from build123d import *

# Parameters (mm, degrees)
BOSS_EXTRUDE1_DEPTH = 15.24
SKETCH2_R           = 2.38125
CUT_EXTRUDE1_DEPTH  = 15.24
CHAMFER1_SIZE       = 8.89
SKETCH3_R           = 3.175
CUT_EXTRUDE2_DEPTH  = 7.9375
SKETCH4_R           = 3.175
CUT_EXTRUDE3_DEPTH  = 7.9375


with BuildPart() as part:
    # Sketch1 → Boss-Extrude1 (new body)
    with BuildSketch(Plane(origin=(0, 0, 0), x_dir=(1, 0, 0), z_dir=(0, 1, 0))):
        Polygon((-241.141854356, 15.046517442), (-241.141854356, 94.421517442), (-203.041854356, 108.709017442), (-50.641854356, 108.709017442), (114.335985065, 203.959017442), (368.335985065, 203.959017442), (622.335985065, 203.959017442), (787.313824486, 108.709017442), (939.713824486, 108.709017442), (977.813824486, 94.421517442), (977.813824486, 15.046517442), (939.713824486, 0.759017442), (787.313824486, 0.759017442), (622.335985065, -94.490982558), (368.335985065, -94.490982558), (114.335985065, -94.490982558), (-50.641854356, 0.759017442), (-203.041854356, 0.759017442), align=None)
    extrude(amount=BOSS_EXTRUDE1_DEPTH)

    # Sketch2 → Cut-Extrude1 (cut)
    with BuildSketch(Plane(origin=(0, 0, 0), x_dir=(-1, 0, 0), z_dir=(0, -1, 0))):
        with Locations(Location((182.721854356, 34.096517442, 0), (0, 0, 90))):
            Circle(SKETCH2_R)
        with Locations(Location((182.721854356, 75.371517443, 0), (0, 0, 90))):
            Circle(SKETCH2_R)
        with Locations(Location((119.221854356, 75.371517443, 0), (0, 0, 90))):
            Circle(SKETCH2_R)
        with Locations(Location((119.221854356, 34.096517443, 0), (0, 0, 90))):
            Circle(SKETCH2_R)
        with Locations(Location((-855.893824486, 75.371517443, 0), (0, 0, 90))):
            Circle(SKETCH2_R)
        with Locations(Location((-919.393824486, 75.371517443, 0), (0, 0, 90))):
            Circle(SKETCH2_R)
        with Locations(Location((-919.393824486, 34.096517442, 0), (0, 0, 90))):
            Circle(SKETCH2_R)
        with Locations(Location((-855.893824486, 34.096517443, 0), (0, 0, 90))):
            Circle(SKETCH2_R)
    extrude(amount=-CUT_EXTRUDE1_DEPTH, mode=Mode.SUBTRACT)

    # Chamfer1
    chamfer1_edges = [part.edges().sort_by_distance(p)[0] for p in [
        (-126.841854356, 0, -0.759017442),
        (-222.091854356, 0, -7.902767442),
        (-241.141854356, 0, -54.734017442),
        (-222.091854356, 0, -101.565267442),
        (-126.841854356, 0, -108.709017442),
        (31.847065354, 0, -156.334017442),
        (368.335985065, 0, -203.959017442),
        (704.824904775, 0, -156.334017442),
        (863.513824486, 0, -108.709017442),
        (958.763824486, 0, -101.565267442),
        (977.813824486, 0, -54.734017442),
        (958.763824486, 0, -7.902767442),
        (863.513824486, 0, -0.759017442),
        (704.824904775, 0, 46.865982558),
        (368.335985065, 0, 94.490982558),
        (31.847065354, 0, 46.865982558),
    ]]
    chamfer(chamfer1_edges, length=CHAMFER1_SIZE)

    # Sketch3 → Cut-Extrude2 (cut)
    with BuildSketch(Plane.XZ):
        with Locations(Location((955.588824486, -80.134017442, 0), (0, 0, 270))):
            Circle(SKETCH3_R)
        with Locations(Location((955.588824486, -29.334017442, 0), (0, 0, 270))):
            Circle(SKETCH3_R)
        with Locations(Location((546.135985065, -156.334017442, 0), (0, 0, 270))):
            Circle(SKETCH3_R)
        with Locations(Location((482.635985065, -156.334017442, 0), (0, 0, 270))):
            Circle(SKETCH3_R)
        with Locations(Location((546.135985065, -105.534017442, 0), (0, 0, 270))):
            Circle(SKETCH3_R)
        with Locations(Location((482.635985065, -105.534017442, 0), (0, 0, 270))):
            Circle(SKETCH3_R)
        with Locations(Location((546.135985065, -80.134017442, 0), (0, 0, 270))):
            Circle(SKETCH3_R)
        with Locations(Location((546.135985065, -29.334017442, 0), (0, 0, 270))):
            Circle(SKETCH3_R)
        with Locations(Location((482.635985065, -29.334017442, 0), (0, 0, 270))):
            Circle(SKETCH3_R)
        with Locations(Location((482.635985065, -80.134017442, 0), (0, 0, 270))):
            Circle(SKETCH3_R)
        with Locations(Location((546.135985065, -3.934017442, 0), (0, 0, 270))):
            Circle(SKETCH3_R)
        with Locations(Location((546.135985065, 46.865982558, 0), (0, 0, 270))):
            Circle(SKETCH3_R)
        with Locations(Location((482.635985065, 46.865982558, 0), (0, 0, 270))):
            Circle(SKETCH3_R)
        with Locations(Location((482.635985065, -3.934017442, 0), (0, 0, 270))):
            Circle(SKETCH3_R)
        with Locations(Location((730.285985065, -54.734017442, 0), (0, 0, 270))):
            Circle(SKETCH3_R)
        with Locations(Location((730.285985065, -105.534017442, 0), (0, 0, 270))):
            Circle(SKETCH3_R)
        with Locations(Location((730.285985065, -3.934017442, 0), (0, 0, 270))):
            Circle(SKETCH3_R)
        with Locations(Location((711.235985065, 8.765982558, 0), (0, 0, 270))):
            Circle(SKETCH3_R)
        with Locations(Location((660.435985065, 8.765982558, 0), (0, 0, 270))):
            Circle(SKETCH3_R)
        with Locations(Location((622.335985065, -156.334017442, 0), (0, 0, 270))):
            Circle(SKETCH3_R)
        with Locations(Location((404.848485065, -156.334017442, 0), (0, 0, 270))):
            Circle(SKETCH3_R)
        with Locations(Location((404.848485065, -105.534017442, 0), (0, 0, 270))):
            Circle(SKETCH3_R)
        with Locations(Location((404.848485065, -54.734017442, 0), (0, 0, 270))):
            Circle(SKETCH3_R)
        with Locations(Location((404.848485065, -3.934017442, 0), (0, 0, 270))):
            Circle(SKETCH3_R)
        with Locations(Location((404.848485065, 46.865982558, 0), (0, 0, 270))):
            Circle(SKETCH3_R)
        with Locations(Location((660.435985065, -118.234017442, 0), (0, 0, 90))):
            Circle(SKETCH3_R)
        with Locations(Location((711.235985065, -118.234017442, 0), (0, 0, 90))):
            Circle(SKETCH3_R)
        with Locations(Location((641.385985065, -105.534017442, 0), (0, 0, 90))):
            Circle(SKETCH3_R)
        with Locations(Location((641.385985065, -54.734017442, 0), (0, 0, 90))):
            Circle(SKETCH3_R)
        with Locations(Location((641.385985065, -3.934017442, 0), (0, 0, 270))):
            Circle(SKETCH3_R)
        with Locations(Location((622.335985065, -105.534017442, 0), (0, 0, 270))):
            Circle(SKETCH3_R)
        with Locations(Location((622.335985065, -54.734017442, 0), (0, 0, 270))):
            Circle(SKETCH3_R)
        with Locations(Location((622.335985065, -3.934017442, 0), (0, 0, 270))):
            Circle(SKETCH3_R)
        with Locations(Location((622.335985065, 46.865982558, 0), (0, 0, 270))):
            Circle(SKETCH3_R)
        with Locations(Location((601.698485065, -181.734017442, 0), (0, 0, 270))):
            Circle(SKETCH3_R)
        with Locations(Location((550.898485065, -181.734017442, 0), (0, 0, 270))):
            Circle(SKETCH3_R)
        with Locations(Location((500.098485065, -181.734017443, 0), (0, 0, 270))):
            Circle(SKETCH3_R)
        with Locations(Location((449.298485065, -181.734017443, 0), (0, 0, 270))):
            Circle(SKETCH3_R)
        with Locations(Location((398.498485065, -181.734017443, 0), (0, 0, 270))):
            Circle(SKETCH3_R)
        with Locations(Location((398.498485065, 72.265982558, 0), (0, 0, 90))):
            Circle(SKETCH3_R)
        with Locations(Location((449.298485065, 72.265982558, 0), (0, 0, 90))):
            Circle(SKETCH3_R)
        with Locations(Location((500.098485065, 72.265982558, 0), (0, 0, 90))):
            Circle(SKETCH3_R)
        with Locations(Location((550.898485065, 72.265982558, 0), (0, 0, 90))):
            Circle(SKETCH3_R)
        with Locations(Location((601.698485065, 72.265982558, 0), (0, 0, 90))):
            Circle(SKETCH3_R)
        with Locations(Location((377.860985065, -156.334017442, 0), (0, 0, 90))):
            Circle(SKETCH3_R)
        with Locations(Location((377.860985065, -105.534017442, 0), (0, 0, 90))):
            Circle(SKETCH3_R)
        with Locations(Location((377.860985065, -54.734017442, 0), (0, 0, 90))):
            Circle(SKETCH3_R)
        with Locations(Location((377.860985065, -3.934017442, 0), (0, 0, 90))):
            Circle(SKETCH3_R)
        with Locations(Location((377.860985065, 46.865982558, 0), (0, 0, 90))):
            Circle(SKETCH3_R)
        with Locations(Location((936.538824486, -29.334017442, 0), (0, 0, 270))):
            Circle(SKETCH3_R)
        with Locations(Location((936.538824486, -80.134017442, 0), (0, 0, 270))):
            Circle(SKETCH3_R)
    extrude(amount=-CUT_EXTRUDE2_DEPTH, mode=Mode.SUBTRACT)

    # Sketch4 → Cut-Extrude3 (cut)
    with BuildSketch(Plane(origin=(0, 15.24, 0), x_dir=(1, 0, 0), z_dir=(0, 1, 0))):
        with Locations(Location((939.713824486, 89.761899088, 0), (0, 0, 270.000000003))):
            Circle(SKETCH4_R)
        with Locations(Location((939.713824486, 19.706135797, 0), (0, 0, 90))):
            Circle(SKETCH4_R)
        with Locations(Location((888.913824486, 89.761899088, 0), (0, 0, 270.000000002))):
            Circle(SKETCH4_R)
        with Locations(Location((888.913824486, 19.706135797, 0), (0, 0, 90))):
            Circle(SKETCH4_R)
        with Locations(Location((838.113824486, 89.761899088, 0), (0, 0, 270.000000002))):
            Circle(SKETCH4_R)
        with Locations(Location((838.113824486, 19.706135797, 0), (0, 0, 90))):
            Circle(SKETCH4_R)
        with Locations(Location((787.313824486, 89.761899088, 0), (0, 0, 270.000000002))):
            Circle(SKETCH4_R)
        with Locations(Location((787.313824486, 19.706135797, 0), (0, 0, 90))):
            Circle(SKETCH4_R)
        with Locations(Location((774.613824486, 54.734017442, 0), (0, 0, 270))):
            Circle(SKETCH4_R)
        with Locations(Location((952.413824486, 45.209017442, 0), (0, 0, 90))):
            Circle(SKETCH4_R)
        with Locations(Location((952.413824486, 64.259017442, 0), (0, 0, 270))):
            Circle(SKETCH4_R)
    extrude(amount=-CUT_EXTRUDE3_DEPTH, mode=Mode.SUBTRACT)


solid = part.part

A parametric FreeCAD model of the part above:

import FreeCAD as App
import Part
import Sketcher
Q = App.Units.Quantity


def edges_at(feature, points):
    """Names of the edges that pass closest to the given points."""
    edges = feature.Shape.Edges
    near = lambda p: min(range(len(edges)), key=lambda i: edges[i].distToShape(Part.Vertex(*p))[0])
    return sorted({f"Edge{near(p) + 1}" for p in points})


def add_polygon(sketch, points):
    """Adds a closed chain of lines whose ends are joined by coincident constraints."""
    first, n = sketch.GeometryCount, len(points)
    for a, b in zip(points, points[1:] + points[:1]):
        sketch.addGeometry(Part.LineSegment(App.Vector(*a, 0), App.Vector(*b, 0)), False)
    for i in range(n):
        sketch.addConstraint(Sketcher.Constraint("Coincident", first + i, 2, first + (i + 1) % n, 1))

doc = App.newDocument("Part")
body = doc.addObject("PartDesign::Body", "Body")

# Sketch on XZ plane
sketch1 = body.newObject("Sketcher::SketchObject", "Sketch")
sketch1.AttachmentSupport = (doc.getObject("XZ_Plane"), [""])
sketch1.MapMode = "FlatFace"
add_polygon(sketch1, [(-241, -94), (-241, -15), (-203, -1), (-51, -1), (114, 94), (622, 94), (787, -1), (940, -1), (978, -15), (978, -94), (940, -109), (787, -109), (622, -204), (114, -204), (-51, -109), (-203, -109)])  # lines 0-15
sketch1.addConstraint(Sketcher.Constraint("Vertical", 0))
sketch1.addConstraint(Sketcher.Constraint("Horizontal", 2))
sketch1.addConstraint(Sketcher.Constraint("Horizontal", 4))
sketch1.addConstraint(Sketcher.Constraint("Horizontal", 6))
sketch1.addConstraint(Sketcher.Constraint("Vertical", 8))
sketch1.addConstraint(Sketcher.Constraint("Horizontal", 10))
sketch1.addConstraint(Sketcher.Constraint("Horizontal", 12))
sketch1.addConstraint(Sketcher.Constraint("Horizontal", 14))
sketch1.addConstraint(Sketcher.Constraint("Parallel", 1, 9))
sketch1.addConstraint(Sketcher.Constraint("Parallel", 3, 11))
sketch1.addConstraint(Sketcher.Constraint("Parallel", 5, 13))
sketch1.addConstraint(Sketcher.Constraint("Parallel", 7, 15))
sketch1.addConstraint(Sketcher.Constraint("Horizontal", 2, 2, 5, 2))
sketch1.addConstraint(Sketcher.Constraint("Horizontal", 0, 2, 7, 2))
sketch1.addConstraint(Sketcher.Constraint("Horizontal", 10, 2, 13, 2))
sketch1.addConstraint(Sketcher.Constraint("Horizontal", 8, 2, 15, 2))
sketch1.addConstraint(Sketcher.Constraint("Vertical", 6, 2, 9, 2))
sketch1.addConstraint(Sketcher.Constraint("Vertical", 5, 2, 10, 2))
sketch1.addConstraint(Sketcher.Constraint("Vertical", 4, 2, 11, 2))
sketch1.addConstraint(Sketcher.Constraint("Vertical", 3, 2, 12, 2))
sketch1.addConstraint(Sketcher.Constraint("Vertical", 2, 2, 13, 2))
sketch1.addConstraint(Sketcher.Constraint("Vertical", 1, 2, 14, 2))
sketch1.addConstraint(Sketcher.Constraint("Equal", 2, 6))
sketch1.addConstraint(Sketcher.Constraint("DistanceX", 2, 1, 2, 2, Q("6 in")))
sketch1.addConstraint(Sketcher.Constraint("DistanceX", 4, 1, 4, 2, Q("20 in")))
sketch1.addConstraint(Sketcher.Constraint("Angle", 3, Q("30 deg")))
sketch1.addConstraint(Sketcher.Constraint("DistanceY", 9, 2, 4, 2, Q("8 in")))
sketch1.addConstraint(Sketcher.Constraint("Distance", 3, Q("7.5 in")))
sketch1.addConstraint(Sketcher.Constraint("DistanceX", 0, 2, 1, 2, Q("1.5 in")))
sketch1.addConstraint(Sketcher.Constraint("DistanceY", 0, 1, 0, 2, Q("3.125 in")))
sketch1.addConstraint(Sketcher.Constraint("DistanceX", 0, 2, -1, 1, Q("241.141854 mm")))
sketch1.addConstraint(Sketcher.Constraint("DistanceY", 0, 2, -1, 1, Q("15.046517 mm")))
pad1 = body.newObject("PartDesign::Pad", "Pad")
pad1.Profile = sketch1
pad1.Length = Q("0.6 in")
pad1.Reversed = True

# Sketch on XZ plane
sketch2 = body.newObject("Sketcher::SketchObject", "Sketch001")
sketch2.AttachmentSupport = (doc.getObject("XZ_Plane"), [""])
sketch2.MapMode = "FlatFace"
sketch2.addGeometry(Part.Circle(App.Vector(-182.7, -34.1, 0), App.Vector(0, 0, 1), 2.4), False)
sketch2.addGeometry(Part.Circle(App.Vector(-182.7, -75.4, 0), App.Vector(0, 0, 1), 2.4), False)
sketch2.addGeometry(Part.Circle(App.Vector(-119.2, -75.4, 0), App.Vector(0, 0, 1), 2.4), False)
sketch2.addGeometry(Part.Circle(App.Vector(-119.2, -34.1, 0), App.Vector(0, 0, 1), 2.4), False)
sketch2.addGeometry(Part.Circle(App.Vector(855.9, -75.4, 0), App.Vector(0, 0, 1), 2.4), False)
sketch2.addGeometry(Part.Circle(App.Vector(919.4, -75.4, 0), App.Vector(0, 0, 1), 2.4), False)
sketch2.addGeometry(Part.Circle(App.Vector(919.4, -34.1, 0), App.Vector(0, 0, 1), 2.4), False)
sketch2.addGeometry(Part.Circle(App.Vector(855.9, -34.1, 0), App.Vector(0, 0, 1), 2.4), False)
sketch2.addConstraint(Sketcher.Constraint("Equal", 0, 1))
sketch2.addConstraint(Sketcher.Constraint("Equal", 1, 2))
sketch2.addConstraint(Sketcher.Constraint("Equal", 2, 3))
sketch2.addConstraint(Sketcher.Constraint("Equal", 3, 4))
sketch2.addConstraint(Sketcher.Constraint("Equal", 4, 5))
sketch2.addConstraint(Sketcher.Constraint("Equal", 5, 6))
sketch2.addConstraint(Sketcher.Constraint("Equal", 6, 7))
sketch2.addConstraint(Sketcher.Constraint("Horizontal", 1, 3, 2, 3))
sketch2.addConstraint(Sketcher.Constraint("Horizontal", 0, 3, 3, 3))
sketch2.addConstraint(Sketcher.Constraint("Horizontal", 2, 3, 4, 3))
sketch2.addConstraint(Sketcher.Constraint("Horizontal", 4, 3, 5, 3))
sketch2.addConstraint(Sketcher.Constraint("Horizontal", 3, 3, 6, 3))
sketch2.addConstraint(Sketcher.Constraint("Horizontal", 6, 3, 7, 3))
sketch2.addConstraint(Sketcher.Constraint("Vertical", 0, 3, 1, 3))
sketch2.addConstraint(Sketcher.Constraint("Vertical", 2, 3, 3, 3))
sketch2.addConstraint(Sketcher.Constraint("Vertical", 5, 3, 6, 3))
sketch2.addConstraint(Sketcher.Constraint("Vertical", 4, 3, 7, 3))
sketch2.addConstraint(Sketcher.Constraint("Diameter", 0, Q("0.1875 in")))
sketch2.addConstraint(Sketcher.Constraint("DistanceX", 1, 3, 2, 3, Q("2.5 in")))
sketch2.addConstraint(Sketcher.Constraint("DistanceX", 4, 3, 5, 3, Q("2.5 in")))
sketch2.addConstraint(Sketcher.Constraint("DistanceY", 1, 3, 0, 3, Q("1.625 in")))
sketch2.addConstraint(Sketcher.Constraint("DistanceX", 2, 3, 4, 3, Q("975.115679 mm")))
sketch2.addConstraint(Sketcher.Constraint("DistanceX", 0, 3, -1, 1, Q("182.721854 mm")))
sketch2.addConstraint(Sketcher.Constraint("DistanceY", 0, 3, -1, 1, Q("34.096517 mm")))
pocket1 = body.newObject("PartDesign::Pocket", "Pocket")
pocket1.Profile = sketch2
pocket1.Length = Q("0.6 in")
doc.recompute()

chamfer = body.newObject("PartDesign::Chamfer", "Chamfer")
chamfer.Base = (pocket1, edges_at(pocket1, [
    (-126.842, 0, -0.759),
    (-222.092, 0, -7.903),
    (-241.142, 0, -54.734),
    (-222.092, 0, -101.565),
    (-126.842, 0, -108.709),
    (31.847, 0, -156.334),
    (368.336, 0, -203.959),
    (704.825, 0, -156.334),
    (863.514, 0, -108.709),
    (958.764, 0, -101.565),
    (977.814, 0, -54.734),
    (958.764, 0, -7.903),
    (863.514, 0, -0.759),
    (704.825, 0, 46.866),
    (368.336, 0, 94.491),
    (31.847, 0, 46.866),
]))
chamfer.Size = Q("0.35 in")

# Sketch on XZ plane
sketch3 = body.newObject("Sketcher::SketchObject", "Sketch002")
sketch3.AttachmentSupport = (doc.getObject("XZ_Plane"), [""])
sketch3.MapMode = "FlatFace"
sketch3.addGeometry(Part.Circle(App.Vector(955.6, -80.1, 0), App.Vector(0, 0, 1), 3.2), False)
sketch3.addGeometry(Part.Circle(App.Vector(955.6, -29.3, 0), App.Vector(0, 0, 1), 3.2), False)
sketch3.addGeometry(Part.Circle(App.Vector(546.1, -156.3, 0), App.Vector(0, 0, 1), 3.2), False)
sketch3.addGeometry(Part.Circle(App.Vector(482.6, -156.3, 0), App.Vector(0, 0, 1), 3.2), False)
sketch3.addGeometry(Part.Circle(App.Vector(546.1, -105.5, 0), App.Vector(0, 0, 1), 3.2), False)
sketch3.addGeometry(Part.Circle(App.Vector(482.6, -105.5, 0), App.Vector(0, 0, 1), 3.2), False)
sketch3.addGeometry(Part.Circle(App.Vector(546.1, -80.1, 0), App.Vector(0, 0, 1), 3.2), False)
sketch3.addGeometry(Part.Circle(App.Vector(546.1, -29.3, 0), App.Vector(0, 0, 1), 3.2), False)
sketch3.addGeometry(Part.Circle(App.Vector(482.6, -29.3, 0), App.Vector(0, 0, 1), 3.2), False)
sketch3.addGeometry(Part.Circle(App.Vector(482.6, -80.1, 0), App.Vector(0, 0, 1), 3.2), False)
sketch3.addGeometry(Part.Circle(App.Vector(546.1, -3.9, 0), App.Vector(0, 0, 1), 3.2), False)
sketch3.addGeometry(Part.Circle(App.Vector(546.1, 46.9, 0), App.Vector(0, 0, 1), 3.2), False)
sketch3.addGeometry(Part.Circle(App.Vector(482.6, 46.9, 0), App.Vector(0, 0, 1), 3.2), False)
sketch3.addGeometry(Part.Circle(App.Vector(482.6, -3.9, 0), App.Vector(0, 0, 1), 3.2), False)
sketch3.addGeometry(Part.Circle(App.Vector(730.3, -54.7, 0), App.Vector(0, 0, 1), 3.2), False)
sketch3.addGeometry(Part.Circle(App.Vector(730.3, -105.5, 0), App.Vector(0, 0, 1), 3.2), False)
sketch3.addGeometry(Part.Circle(App.Vector(730.3, -3.9, 0), App.Vector(0, 0, 1), 3.2), False)
sketch3.addGeometry(Part.Circle(App.Vector(711.2, 8.8, 0), App.Vector(0, 0, 1), 3.2), False)
sketch3.addGeometry(Part.Circle(App.Vector(660.4, 8.8, 0), App.Vector(0, 0, 1), 3.2), False)
sketch3.addGeometry(Part.Circle(App.Vector(622.3, -156.3, 0), App.Vector(0, 0, 1), 3.2), False)
sketch3.addGeometry(Part.Circle(App.Vector(404.8, -156.3, 0), App.Vector(0, 0, 1), 3.2), False)
sketch3.addGeometry(Part.Circle(App.Vector(404.8, -105.5, 0), App.Vector(0, 0, 1), 3.2), False)
sketch3.addGeometry(Part.Circle(App.Vector(404.8, -54.7, 0), App.Vector(0, 0, 1), 3.2), False)
sketch3.addGeometry(Part.Circle(App.Vector(404.8, -3.9, 0), App.Vector(0, 0, 1), 3.2), False)
sketch3.addGeometry(Part.Circle(App.Vector(404.8, 46.9, 0), App.Vector(0, 0, 1), 3.2), False)
sketch3.addGeometry(Part.Circle(App.Vector(660.4, -118.2, 0), App.Vector(0, 0, 1), 3.2), False)
sketch3.addGeometry(Part.Circle(App.Vector(711.2, -118.2, 0), App.Vector(0, 0, 1), 3.2), False)
sketch3.addGeometry(Part.Circle(App.Vector(641.4, -105.5, 0), App.Vector(0, 0, 1), 3.2), False)
sketch3.addGeometry(Part.Circle(App.Vector(641.4, -54.7, 0), App.Vector(0, 0, 1), 3.2), False)
sketch3.addGeometry(Part.Circle(App.Vector(641.4, -3.9, 0), App.Vector(0, 0, 1), 3.2), False)
sketch3.addGeometry(Part.Circle(App.Vector(622.3, -105.5, 0), App.Vector(0, 0, 1), 3.2), False)
sketch3.addGeometry(Part.Circle(App.Vector(622.3, -54.7, 0), App.Vector(0, 0, 1), 3.2), False)
sketch3.addGeometry(Part.Circle(App.Vector(622.3, -3.9, 0), App.Vector(0, 0, 1), 3.2), False)
sketch3.addGeometry(Part.Circle(App.Vector(622.3, 46.9, 0), App.Vector(0, 0, 1), 3.2), False)
sketch3.addGeometry(Part.Circle(App.Vector(601.7, -181.7, 0), App.Vector(0, 0, 1), 3.2), False)
sketch3.addGeometry(Part.Circle(App.Vector(550.9, -181.7, 0), App.Vector(0, 0, 1), 3.2), False)
sketch3.addGeometry(Part.Circle(App.Vector(500.1, -181.7, 0), App.Vector(0, 0, 1), 3.2), False)
sketch3.addGeometry(Part.Circle(App.Vector(449.3, -181.7, 0), App.Vector(0, 0, 1), 3.2), False)
sketch3.addGeometry(Part.Circle(App.Vector(398.5, -181.7, 0), App.Vector(0, 0, 1), 3.2), False)
sketch3.addGeometry(Part.Circle(App.Vector(398.5, 72.3, 0), App.Vector(0, 0, 1), 3.2), False)
sketch3.addGeometry(Part.Circle(App.Vector(449.3, 72.3, 0), App.Vector(0, 0, 1), 3.2), False)
sketch3.addGeometry(Part.Circle(App.Vector(500.1, 72.3, 0), App.Vector(0, 0, 1), 3.2), False)
sketch3.addGeometry(Part.Circle(App.Vector(550.9, 72.3, 0), App.Vector(0, 0, 1), 3.2), False)
sketch3.addGeometry(Part.Circle(App.Vector(601.7, 72.3, 0), App.Vector(0, 0, 1), 3.2), False)
sketch3.addGeometry(Part.Circle(App.Vector(377.9, -156.3, 0), App.Vector(0, 0, 1), 3.2), False)
sketch3.addGeometry(Part.Circle(App.Vector(377.9, -105.5, 0), App.Vector(0, 0, 1), 3.2), False)
sketch3.addGeometry(Part.Circle(App.Vector(377.9, -54.7, 0), App.Vector(0, 0, 1), 3.2), False)
sketch3.addGeometry(Part.Circle(App.Vector(377.9, -3.9, 0), App.Vector(0, 0, 1), 3.2), False)
sketch3.addGeometry(Part.Circle(App.Vector(377.9, 46.9, 0), App.Vector(0, 0, 1), 3.2), False)
sketch3.addGeometry(Part.Circle(App.Vector(936.5, -29.3, 0), App.Vector(0, 0, 1), 3.2), False)
sketch3.addGeometry(Part.Circle(App.Vector(936.5, -80.1, 0), App.Vector(0, 0, 1), 3.2), False)
sketch3.addConstraint(Sketcher.Constraint("Equal", 0, 1))
sketch3.addConstraint(Sketcher.Constraint("Equal", 1, 2))
sketch3.addConstraint(Sketcher.Constraint("Equal", 2, 3))
sketch3.addConstraint(Sketcher.Constraint("Equal", 3, 4))
sketch3.addConstraint(Sketcher.Constraint("Equal", 4, 5))
sketch3.addConstraint(Sketcher.Constraint("Equal", 5, 6))
sketch3.addConstraint(Sketcher.Constraint("Equal", 6, 7))
sketch3.addConstraint(Sketcher.Constraint("Equal", 7, 8))
sketch3.addConstraint(Sketcher.Constraint("Equal", 8, 9))
sketch3.addConstraint(Sketcher.Constraint("Equal", 9, 10))
sketch3.addConstraint(Sketcher.Constraint("Equal", 10, 11))
sketch3.addConstraint(Sketcher.Constraint("Equal", 11, 12))
sketch3.addConstraint(Sketcher.Constraint("Equal", 12, 13))
sketch3.addConstraint(Sketcher.Constraint("Equal", 13, 14))
sketch3.addConstraint(Sketcher.Constraint("Equal", 14, 15))
sketch3.addConstraint(Sketcher.Constraint("Equal", 15, 16))
sketch3.addConstraint(Sketcher.Constraint("Equal", 16, 17))
sketch3.addConstraint(Sketcher.Constraint("Equal", 17, 18))
sketch3.addConstraint(Sketcher.Constraint("Equal", 18, 19))
sketch3.addConstraint(Sketcher.Constraint("Equal", 19, 20))
sketch3.addConstraint(Sketcher.Constraint("Equal", 20, 21))
sketch3.addConstraint(Sketcher.Constraint("Equal", 21, 22))
sketch3.addConstraint(Sketcher.Constraint("Equal", 22, 23))
sketch3.addConstraint(Sketcher.Constraint("Equal", 23, 24))
sketch3.addConstraint(Sketcher.Constraint("Equal", 24, 25))
sketch3.addConstraint(Sketcher.Constraint("Equal", 25, 26))
sketch3.addConstraint(Sketcher.Constraint("Equal", 26, 27))
sketch3.addConstraint(Sketcher.Constraint("Equal", 27, 28))
sketch3.addConstraint(Sketcher.Constraint("Equal", 28, 29))
sketch3.addConstraint(Sketcher.Constraint("Equal", 29, 30))
sketch3.addConstraint(Sketcher.Constraint("Equal", 30, 31))
sketch3.addConstraint(Sketcher.Constraint("Equal", 31, 32))
sketch3.addConstraint(Sketcher.Constraint("Equal", 32, 33))
sketch3.addConstraint(Sketcher.Constraint("Equal", 33, 34))
sketch3.addConstraint(Sketcher.Constraint("Equal", 34, 35))
sketch3.addConstraint(Sketcher.Constraint("Equal", 35, 36))
sketch3.addConstraint(Sketcher.Constraint("Equal", 36, 37))
sketch3.addConstraint(Sketcher.Constraint("Equal", 37, 38))
sketch3.addConstraint(Sketcher.Constraint("Equal", 38, 39))
sketch3.addConstraint(Sketcher.Constraint("Equal", 39, 40))
sketch3.addConstraint(Sketcher.Constraint("Equal", 40, 41))
sketch3.addConstraint(Sketcher.Constraint("Equal", 41, 42))
sketch3.addConstraint(Sketcher.Constraint("Equal", 42, 43))
sketch3.addConstraint(Sketcher.Constraint("Equal", 43, 44))
sketch3.addConstraint(Sketcher.Constraint("Equal", 44, 45))
sketch3.addConstraint(Sketcher.Constraint("Equal", 45, 46))
sketch3.addConstraint(Sketcher.Constraint("Equal", 46, 47))
sketch3.addConstraint(Sketcher.Constraint("Equal", 47, 48))
sketch3.addConstraint(Sketcher.Constraint("Equal", 48, 49))
sketch3.addConstraint(Sketcher.Constraint("Equal", 49, 50))
sketch3.addConstraint(Sketcher.Constraint("Horizontal", 2, 3, 3, 3))
sketch3.addConstraint(Sketcher.Constraint("Horizontal", 4, 3, 5, 3))
sketch3.addConstraint(Sketcher.Constraint("Horizontal", 0, 3, 6, 3))
sketch3.addConstraint(Sketcher.Constraint("Horizontal", 1, 3, 7, 3))
sketch3.addConstraint(Sketcher.Constraint("Horizontal", 7, 3, 8, 3))
sketch3.addConstraint(Sketcher.Constraint("Horizontal", 6, 3, 9, 3))
sketch3.addConstraint(Sketcher.Constraint("Horizontal", 11, 3, 12, 3))
sketch3.addConstraint(Sketcher.Constraint("Horizontal", 10, 3, 13, 3))
sketch3.addConstraint(Sketcher.Constraint("Horizontal", 5, 3, 15, 3))
sketch3.addConstraint(Sketcher.Constraint("Horizontal", 13, 3, 16, 3))
sketch3.addConstraint(Sketcher.Constraint("Horizontal", 17, 3, 18, 3))
sketch3.addConstraint(Sketcher.Constraint("Horizontal", 3, 3, 19, 3))
sketch3.addConstraint(Sketcher.Constraint("Horizontal", 19, 3, 20, 3))
sketch3.addConstraint(Sketcher.Constraint("Horizontal", 15, 3, 21, 3))
sketch3.addConstraint(Sketcher.Constraint("Horizontal", 14, 3, 22, 3))
sketch3.addConstraint(Sketcher.Constraint("Horizontal", 16, 3, 23, 3))
sketch3.addConstraint(Sketcher.Constraint("Horizontal", 12, 3, 24, 3))
sketch3.addConstraint(Sketcher.Constraint("Horizontal", 25, 3, 26, 3))
sketch3.addConstraint(Sketcher.Constraint("Horizontal", 21, 3, 27, 3))
sketch3.addConstraint(Sketcher.Constraint("Horizontal", 22, 3, 28, 3))
sketch3.addConstraint(Sketcher.Constraint("Horizontal", 23, 3, 29, 3))
sketch3.addConstraint(Sketcher.Constraint("Horizontal", 27, 3, 30, 3))
sketch3.addConstraint(Sketcher.Constraint("Horizontal", 28, 3, 31, 3))
sketch3.addConstraint(Sketcher.Constraint("Horizontal", 29, 3, 32, 3))
sketch3.addConstraint(Sketcher.Constraint("Horizontal", 24, 3, 33, 3))
sketch3.addConstraint(Sketcher.Constraint("Horizontal", 34, 3, 35, 3))
sketch3.addConstraint(Sketcher.Constraint("Horizontal", 35, 3, 36, 3))
sketch3.addConstraint(Sketcher.Constraint("Horizontal", 36, 3, 37, 3))
sketch3.addConstraint(Sketcher.Constraint("Horizontal", 37, 3, 38, 3))
sketch3.addConstraint(Sketcher.Constraint("Horizontal", 39, 3, 40, 3))
sketch3.addConstraint(Sketcher.Constraint("Horizontal", 40, 3, 41, 3))
sketch3.addConstraint(Sketcher.Constraint("Horizontal", 41, 3, 42, 3))
sketch3.addConstraint(Sketcher.Constraint("Horizontal", 42, 3, 43, 3))
sketch3.addConstraint(Sketcher.Constraint("Horizontal", 20, 3, 44, 3))
sketch3.addConstraint(Sketcher.Constraint("Horizontal", 30, 3, 45, 3))
sketch3.addConstraint(Sketcher.Constraint("Horizontal", 31, 3, 46, 3))
sketch3.addConstraint(Sketcher.Constraint("Horizontal", 32, 3, 47, 3))
sketch3.addConstraint(Sketcher.Constraint("Horizontal", 33, 3, 48, 3))
sketch3.addConstraint(Sketcher.Constraint("Horizontal", 8, 3, 49, 3))
sketch3.addConstraint(Sketcher.Constraint("Horizontal", 9, 3, 50, 3))
sketch3.addConstraint(Sketcher.Constraint("Vertical", 0, 3, 1, 3))
sketch3.addConstraint(Sketcher.Constraint("Vertical", 2, 3, 4, 3))
sketch3.addConstraint(Sketcher.Constraint("Vertical", 3, 3, 5, 3))
sketch3.addConstraint(Sketcher.Constraint("Vertical", 4, 3, 6, 3))
sketch3.addConstraint(Sketcher.Constraint("Vertical", 6, 3, 7, 3))
sketch3.addConstraint(Sketcher.Constraint("Vertical", 5, 3, 8, 3))
sketch3.addConstraint(Sketcher.Constraint("Vertical", 8, 3, 9, 3))
sketch3.addConstraint(Sketcher.Constraint("Vertical", 7, 3, 10, 3))
sketch3.addConstraint(Sketcher.Constraint("Vertical", 10, 3, 11, 3))
sketch3.addConstraint(Sketcher.Constraint("Vertical", 9, 3, 12, 3))
sketch3.addConstraint(Sketcher.Constraint("Vertical", 12, 3, 13, 3))
sketch3.addConstraint(Sketcher.Constraint("Vertical", 14, 3, 15, 3))
sketch3.addConstraint(Sketcher.Constraint("Vertical", 15, 3, 16, 3))
sketch3.addConstraint(Sketcher.Constraint("Vertical", 20, 3, 21, 3))
sketch3.addConstraint(Sketcher.Constraint("Vertical", 21, 3, 22, 3))
sketch3.addConstraint(Sketcher.Constraint("Vertical", 22, 3, 23, 3))
sketch3.addConstraint(Sketcher.Constraint("Vertical", 23, 3, 24, 3))
sketch3.addConstraint(Sketcher.Constraint("Vertical", 18, 3, 25, 3))
sketch3.addConstraint(Sketcher.Constraint("Vertical", 17, 3, 26, 3))
sketch3.addConstraint(Sketcher.Constraint("Vertical", 27, 3, 28, 3))
sketch3.addConstraint(Sketcher.Constraint("Vertical", 28, 3, 29, 3))
sketch3.addConstraint(Sketcher.Constraint("Vertical", 19, 3, 30, 3))
sketch3.addConstraint(Sketcher.Constraint("Vertical", 30, 3, 31, 3))
sketch3.addConstraint(Sketcher.Constraint("Vertical", 31, 3, 32, 3))
sketch3.addConstraint(Sketcher.Constraint("Vertical", 32, 3, 33, 3))
sketch3.addConstraint(Sketcher.Constraint("Vertical", 38, 3, 39, 3))
sketch3.addConstraint(Sketcher.Constraint("Vertical", 37, 3, 40, 3))
sketch3.addConstraint(Sketcher.Constraint("Vertical", 36, 3, 41, 3))
sketch3.addConstraint(Sketcher.Constraint("Vertical", 35, 3, 42, 3))
sketch3.addConstraint(Sketcher.Constraint("Vertical", 34, 3, 43, 3))
sketch3.addConstraint(Sketcher.Constraint("Vertical", 44, 3, 45, 3))
sketch3.addConstraint(Sketcher.Constraint("Vertical", 45, 3, 46, 3))
sketch3.addConstraint(Sketcher.Constraint("Vertical", 46, 3, 47, 3))
sketch3.addConstraint(Sketcher.Constraint("Vertical", 47, 3, 48, 3))
sketch3.addConstraint(Sketcher.Constraint("Vertical", 49, 3, 50, 3))
sketch3.addConstraint(Sketcher.Constraint("Diameter", 0, Q("0.25 in")))
sketch3.addConstraint(Sketcher.Constraint("DistanceY", 0, 3, 1, 3, Q("2 in")))
sketch3.addConstraint(Sketcher.Constraint("DistanceY", 2, 3, 0, 3, Q("3 in")))
sketch3.addConstraint(Sketcher.Constraint("DistanceY", 2, 3, 4, 3, Q("2 in")))
sketch3.addConstraint(Sketcher.Constraint("DistanceY", 7, 3, 10, 3, Q("1 in")))
sketch3.addConstraint(Sketcher.Constraint("DistanceY", 10, 3, 11, 3, Q("2 in")))
sketch3.addConstraint(Sketcher.Constraint("DistanceY", 6, 3, 14, 3, Q("1 in")))
sketch3.addConstraint(Sketcher.Constraint("DistanceX", 18, 3, 17, 3, Q("2 in")))
sketch3.addConstraint(Sketcher.Constraint("DistanceX", 2, 3, 19, 3, Q("3 in")))
sketch3.addConstraint(Sketcher.Constraint("DistanceY", 34, 3, 19, 3, Q("1 in")))
sketch3.addConstraint(Sketcher.Constraint("DistanceX", 35, 3, 34, 3, Q("2 in")))
sketch3.addConstraint(Sketcher.Constraint("DistanceX", 36, 3, 35, 3, Q("2 in")))
sketch3.addConstraint(Sketcher.Constraint("DistanceX", 37, 3, 36, 3, Q("2 in")))
sketch3.addConstraint(Sketcher.Constraint("DistanceX", 38, 3, 37, 3, Q("2 in")))
sketch3.addConstraint(Sketcher.Constraint("DistanceY", 24, 3, 39, 3, Q("1 in")))
sketch3.addConstraint(Sketcher.Constraint("DistanceX", 3, 3, 2, 3, Q("2.5 in")))
sketch3.addConstraint(Sketcher.Constraint("DistanceY", 16, 3, 17, 3, Q("0.5 in")))
sketch3.addConstraint(Sketcher.Constraint("DistanceX", 10, 3, 17, 3, Q("6.5 in")))
sketch3.addConstraint(Sketcher.Constraint("DistanceY", 19, 3, 25, 3, Q("1.5 in")))
sketch3.addConstraint(Sketcher.Constraint("DistanceX", 27, 3, 15, 3, Q("3.5 in")))
sketch3.addConstraint(Sketcher.Constraint("DistanceX", 6, 3, 14, 3, Q("7.25 in")))
sketch3.addConstraint(Sketcher.Constraint("DistanceX", 20, 3, 37, 3, Q("1.75 in")))
sketch3.addConstraint(Sketcher.Constraint("DistanceX", 49, 3, 1, 3, Q("0.75 in")))
sketch3.addConstraint(Sketcher.Constraint("DistanceX", 20, 3, 3, 3, Q("3.0625 in")))
sketch3.addConstraint(Sketcher.Constraint("DistanceX", 44, 3, 20, 3, Q("1.0625 in")))
sketch3.addConstraint(Sketcher.Constraint("DistanceX", 2, 3, 0, 3, Q("409.452839 mm")))
sketch3.addConstraint(Sketcher.Constraint("DistanceX", -1, 1, 0, 3, Q("955.588824 mm")))
sketch3.addConstraint(Sketcher.Constraint("DistanceY", 0, 3, -1, 1, Q("80.134017 mm")))
pocket2 = body.newObject("PartDesign::Pocket", "Pocket001")
pocket2.Profile = sketch3
pocket2.Length = Q("0.3125 in")

# Sketch on XZ plane
sketch4 = body.newObject("Sketcher::SketchObject", "Sketch003")
sketch4.AttachmentSupport = (doc.getObject("XZ_Plane"), [""])
sketch4.MapMode = "FlatFace"
sketch4.AttachmentOffset = App.Placement(App.Vector(0, 0, -0.6 * 25.4), App.Rotation())
sketch4.addGeometry(Part.Circle(App.Vector(939.7, -89.8, 0), App.Vector(0, 0, 1), 3.2), False)
sketch4.addGeometry(Part.Circle(App.Vector(939.7, -19.7, 0), App.Vector(0, 0, 1), 3.2), False)
sketch4.addGeometry(Part.Circle(App.Vector(888.9, -89.8, 0), App.Vector(0, 0, 1), 3.2), False)
sketch4.addGeometry(Part.Circle(App.Vector(888.9, -19.7, 0), App.Vector(0, 0, 1), 3.2), False)
sketch4.addGeometry(Part.Circle(App.Vector(838.1, -89.8, 0), App.Vector(0, 0, 1), 3.2), False)
sketch4.addGeometry(Part.Circle(App.Vector(838.1, -19.7, 0), App.Vector(0, 0, 1), 3.2), False)
sketch4.addGeometry(Part.Circle(App.Vector(787.3, -89.8, 0), App.Vector(0, 0, 1), 3.2), False)
sketch4.addGeometry(Part.Circle(App.Vector(787.3, -19.7, 0), App.Vector(0, 0, 1), 3.2), False)
sketch4.addGeometry(Part.Circle(App.Vector(774.6, -54.7, 0), App.Vector(0, 0, 1), 3.2), False)
sketch4.addGeometry(Part.Circle(App.Vector(952.4, -45.2, 0), App.Vector(0, 0, 1), 3.2), False)
sketch4.addGeometry(Part.Circle(App.Vector(952.4, -64.3, 0), App.Vector(0, 0, 1), 3.2), False)
sketch4.addConstraint(Sketcher.Constraint("Equal", 0, 1))
sketch4.addConstraint(Sketcher.Constraint("Equal", 1, 2))
sketch4.addConstraint(Sketcher.Constraint("Equal", 2, 3))
sketch4.addConstraint(Sketcher.Constraint("Equal", 3, 4))
sketch4.addConstraint(Sketcher.Constraint("Equal", 4, 5))
sketch4.addConstraint(Sketcher.Constraint("Equal", 5, 6))
sketch4.addConstraint(Sketcher.Constraint("Equal", 6, 7))
sketch4.addConstraint(Sketcher.Constraint("Equal", 7, 8))
sketch4.addConstraint(Sketcher.Constraint("Equal", 8, 9))
sketch4.addConstraint(Sketcher.Constraint("Equal", 9, 10))
sketch4.addConstraint(Sketcher.Constraint("Horizontal", 0, 3, 2, 3))
sketch4.addConstraint(Sketcher.Constraint("Horizontal", 1, 3, 3, 3))
sketch4.addConstraint(Sketcher.Constraint("Horizontal", 2, 3, 4, 3))
sketch4.addConstraint(Sketcher.Constraint("Horizontal", 3, 3, 5, 3))
sketch4.addConstraint(Sketcher.Constraint("Horizontal", 4, 3, 6, 3))
sketch4.addConstraint(Sketcher.Constraint("Horizontal", 5, 3, 7, 3))
sketch4.addConstraint(Sketcher.Constraint("Vertical", 0, 3, 1, 3))
sketch4.addConstraint(Sketcher.Constraint("Vertical", 2, 3, 3, 3))
sketch4.addConstraint(Sketcher.Constraint("Vertical", 4, 3, 5, 3))
sketch4.addConstraint(Sketcher.Constraint("Vertical", 6, 3, 7, 3))
sketch4.addConstraint(Sketcher.Constraint("Vertical", 9, 3, 10, 3))
sketch4.addConstraint(Sketcher.Constraint("Diameter", 0, Q("0.25 in")))
sketch4.addConstraint(Sketcher.Constraint("DistanceX", 2, 3, 0, 3, Q("2 in")))
sketch4.addConstraint(Sketcher.Constraint("DistanceX", 4, 3, 2, 3, Q("2 in")))
sketch4.addConstraint(Sketcher.Constraint("DistanceX", 6, 3, 4, 3, Q("2 in")))
sketch4.addConstraint(Sketcher.Constraint("DistanceX", 8, 3, 7, 3, Q("0.5 in")))
sketch4.addConstraint(Sketcher.Constraint("DistanceX", 1, 3, 9, 3, Q("0.5 in")))
sketch4.addConstraint(Sketcher.Constraint("DistanceY", 10, 3, 9, 3, Q("0.75 in")))
sketch4.addConstraint(Sketcher.Constraint("DistanceY", 0, 3, -1, 1, Q("89.761899 mm")))
sketch4.addConstraint(Sketcher.Constraint("DistanceY", 8, 3, 7, 3, Q("35.027882 mm")))
sketch4.addConstraint(Sketcher.Constraint("DistanceY", 6, 3, 8, 3, Q("35.027882 mm")))
sketch4.addConstraint(Sketcher.Constraint("DistanceY", 9, 3, 1, 3, Q("25.502882 mm")))
sketch4.addConstraint(Sketcher.Constraint("DistanceX", -1, 1, 0, 3, Q("939.713824 mm")))
pocket3 = body.newObject("PartDesign::Pocket", "Pocket002")
pocket3.Profile = sketch4
pocket3.Length = Q("0.3125 in")
pocket3.Reversed = True

doc.recompute()
